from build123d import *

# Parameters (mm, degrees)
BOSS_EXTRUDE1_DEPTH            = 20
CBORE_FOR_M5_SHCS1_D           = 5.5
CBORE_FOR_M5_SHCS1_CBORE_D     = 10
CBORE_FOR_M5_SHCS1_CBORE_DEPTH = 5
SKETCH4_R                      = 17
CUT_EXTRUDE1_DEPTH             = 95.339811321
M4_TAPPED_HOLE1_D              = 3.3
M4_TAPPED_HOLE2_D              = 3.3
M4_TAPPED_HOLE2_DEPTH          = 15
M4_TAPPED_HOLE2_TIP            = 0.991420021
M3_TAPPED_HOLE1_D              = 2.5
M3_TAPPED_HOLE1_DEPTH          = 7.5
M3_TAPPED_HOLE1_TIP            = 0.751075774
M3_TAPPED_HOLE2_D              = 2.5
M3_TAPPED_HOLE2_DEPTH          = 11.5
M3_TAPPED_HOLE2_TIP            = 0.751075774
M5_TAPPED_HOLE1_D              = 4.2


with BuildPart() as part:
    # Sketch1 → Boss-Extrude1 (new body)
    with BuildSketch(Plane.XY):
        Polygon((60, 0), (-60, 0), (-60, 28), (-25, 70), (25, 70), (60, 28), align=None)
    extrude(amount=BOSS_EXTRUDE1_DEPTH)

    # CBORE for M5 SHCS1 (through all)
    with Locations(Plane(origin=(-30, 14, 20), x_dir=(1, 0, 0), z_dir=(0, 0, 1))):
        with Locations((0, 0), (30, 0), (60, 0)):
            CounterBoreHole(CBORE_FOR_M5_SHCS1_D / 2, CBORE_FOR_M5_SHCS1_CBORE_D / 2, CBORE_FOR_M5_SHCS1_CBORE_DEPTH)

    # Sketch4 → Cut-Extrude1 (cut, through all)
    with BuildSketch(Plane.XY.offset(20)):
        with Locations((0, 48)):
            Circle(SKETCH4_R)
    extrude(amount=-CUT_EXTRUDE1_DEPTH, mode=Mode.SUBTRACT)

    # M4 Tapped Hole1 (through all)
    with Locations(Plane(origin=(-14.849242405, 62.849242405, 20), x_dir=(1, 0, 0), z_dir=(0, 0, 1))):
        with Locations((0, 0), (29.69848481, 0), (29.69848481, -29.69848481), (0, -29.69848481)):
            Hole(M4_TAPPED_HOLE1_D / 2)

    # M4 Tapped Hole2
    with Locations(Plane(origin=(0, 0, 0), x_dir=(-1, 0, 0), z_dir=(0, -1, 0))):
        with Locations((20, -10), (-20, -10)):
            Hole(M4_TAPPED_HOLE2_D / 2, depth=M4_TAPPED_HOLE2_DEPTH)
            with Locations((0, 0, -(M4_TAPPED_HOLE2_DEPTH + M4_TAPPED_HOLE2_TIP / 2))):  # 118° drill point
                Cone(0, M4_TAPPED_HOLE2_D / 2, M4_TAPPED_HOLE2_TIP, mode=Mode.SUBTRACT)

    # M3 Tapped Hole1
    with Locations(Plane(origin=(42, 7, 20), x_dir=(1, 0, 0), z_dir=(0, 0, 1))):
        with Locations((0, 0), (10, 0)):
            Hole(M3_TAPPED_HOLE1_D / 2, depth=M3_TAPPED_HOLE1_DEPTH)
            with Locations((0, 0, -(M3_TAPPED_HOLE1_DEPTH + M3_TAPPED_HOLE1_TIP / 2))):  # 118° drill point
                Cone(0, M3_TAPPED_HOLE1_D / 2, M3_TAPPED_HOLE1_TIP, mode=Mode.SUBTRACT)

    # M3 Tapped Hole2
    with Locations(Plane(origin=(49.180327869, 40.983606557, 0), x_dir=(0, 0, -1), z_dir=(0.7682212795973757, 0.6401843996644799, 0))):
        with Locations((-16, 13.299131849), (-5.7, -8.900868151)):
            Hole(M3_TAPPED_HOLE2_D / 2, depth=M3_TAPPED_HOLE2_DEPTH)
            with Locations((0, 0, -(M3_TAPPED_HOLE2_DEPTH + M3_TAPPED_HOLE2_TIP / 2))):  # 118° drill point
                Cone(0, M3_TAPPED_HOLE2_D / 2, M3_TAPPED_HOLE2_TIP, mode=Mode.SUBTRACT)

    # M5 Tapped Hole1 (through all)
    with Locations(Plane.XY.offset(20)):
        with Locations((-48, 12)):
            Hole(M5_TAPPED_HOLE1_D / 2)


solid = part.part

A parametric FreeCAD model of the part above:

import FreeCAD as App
import Part
import Sketcher


def add_polygon(sketch, points):
    """Adds a closed chain of lines whose ends are joined by coincident constraints."""
    first, n = sketch.GeometryCount, len(points)
    for a, b in zip(points, points[1:] + points[:1]):
        sketch.addGeometry(Part.LineSegment(App.Vector(*a, 0), App.Vector(*b, 0)), False)
    for i in range(n):
        sketch.addConstraint(Sketcher.Constraint("Coincident", first + i, 2, first + (i + 1) % n, 1))

doc = App.newDocument("Part")
body = doc.addObject("PartDesign::Body", "Body")

# Sketch on XY plane
sketch1 = doc.addObject("Sketcher::SketchObject", "Sketch")
body.addObject(sketch1)
sketch1.AttachmentSupport = (doc.XY_Plane, [""])
sketch1.MapMode = "FlatFace"
add_polygon(sketch1, [(-60, 0), (60, 0), (60, 28), (25, 70), (-25, 70), (-60, 28)])  # lines 0-5
sketch1.addConstraint(Sketcher.Constraint("Horizontal", 0))
sketch1.addConstraint(Sketcher.Constraint("Vertical", 1))
sketch1.addConstraint(Sketcher.Constraint("Horizontal", 3))
sketch1.addConstraint(Sketcher.Constraint("Vertical", 5))
sketch1.addConstraint(Sketcher.Constraint("Symmetric", 0, 2, 5, 2, -1, 1))
sketch1.addConstraint(Sketcher.Constraint("Horizontal", 1, 2, 4, 2))
sketch1.addConstraint(Sketcher.Constraint("Equal", 2, 4))
sketch1.addConstraint(Sketcher.Constraint("DistanceX", 0, 1, 0, 2, 120.0))
sketch1.addConstraint(Sketcher.Constraint("DistanceX", 3, 2, 3, 1, 50.0))
sketch1.addConstraint(Sketcher.Constraint("DistanceY", 1, 1, 1, 2, 28.0))
sketch1.addConstraint(Sketcher.Constraint("DistanceY", -1, 1, 2, 2, 70.0))
pad1 = doc.addObject("PartDesign::Pad", "Pad")
body.addObject(pad1)
pad1.Profile = sketch1
pad1.Length = 20

# Sketch on XY plane
sketch2 = doc.addObject("Sketcher::SketchObject", "Sketch001")
body.addObject(sketch2)
sketch2.AttachmentSupport = (doc.XY_Plane, [""])
sketch2.MapMode = "FlatFace"
sketch2.AttachmentOffset = App.Placement(App.Vector(0, 0, 20), App.Rotation())
sketch2.addGeometry(Part.Circle(App.Vector(-30, 14, 0), App.Vector(0, 0, 1), 2.8), False)
sketch2.addGeometry(Part.Circle(App.Vector(0, 14, 0), App.Vector(0, 0, 1), 2.8), False)
sketch2.addGeometry(Part.Circle(App.Vector(30, 14, 0), App.Vector(0, 0, 1), 2.8), False)
sketch2.addConstraint(Sketcher.Constraint("Equal", 0, 1))
sketch2.addConstraint(Sketcher.Constraint("Equal", 1, 2))
sketch2.addConstraint(Sketcher.Constraint("Symmetric", 0, 3, 2, 3, -2))
sketch2.addConstraint(Sketcher.Constraint("PointOnObject", 1, 3, -2))
sketch2.addConstraint(Sketcher.Constraint("Horizontal", 0, 3, 1, 3))
sketch2.addConstraint(Sketcher.Constraint("Diameter", 0, 5.5))
sketch2.addConstraint(Sketcher.Constraint("DistanceX", 0, 3, -1, 1, 30.0))
sketch2.addConstraint(Sketcher.Constraint("DistanceY", -1, 1, 0, 3, 14.0))
doc.recompute()
hole = doc.addObject("PartDesign::Hole", "Hole")
body.addObject(hole)
hole.Profile = sketch2
hole.ThreadType = "None"
hole.Diameter = 5.5
hole.DepthType = "ThroughAll"
hole.HoleCutType = "Counterbore"
hole.HoleCutDiameter = 10
hole.HoleCutDepth = 5

# Sketch on XY plane
sketch3 = doc.addObject("Sketcher::SketchObject", "Sketch002")
body.addObject(sketch3)
sketch3.AttachmentSupport = (doc.XY_Plane, [""])
sketch3.MapMode = "FlatFace"
sketch3.AttachmentOffset = App.Placement(App.Vector(0, 0, 20), App.Rotation())
sketch3.addGeometry(Part.Circle(App.Vector(0, 48, 0), App.Vector(0, 0, 1), 17), False)
sketch3.addConstraint(Sketcher.Constraint("PointOnObject", 0, 3, -2))
sketch3.addConstraint(Sketcher.Constraint("Diameter", 0, 34.0))
sketch3.addConstraint(Sketcher.Constraint("DistanceY", -1, 1, 0, 3, 48.0))
pocket1 = doc.addObject("PartDesign::Pocket", "Pocket")
body.addObject(pocket1)
pocket1.Profile = sketch3
pocket1.Type = "ThroughAll"

# Sketch on XY plane
sketch4 = doc.addObject("Sketcher::SketchObject", "Sketch003")
body.addObject(sketch4)
sketch4.AttachmentSupport = (doc.XY_Plane, [""])
sketch4.MapMode = "FlatFace"
sketch4.AttachmentOffset = App.Placement(App.Vector(0, 0, 20), App.Rotation())
sketch4.addGeometry(Part.Circle(App.Vector(-14.8, 62.8, 0), App.Vector(0, 0, 1), 1.6), False)
sketch4.addGeometry(Part.Circle(App.Vector(14.8, 62.8, 0), App.Vector(0, 0, 1), 1.6), False)
sketch4.addGeometry(Part.Circle(App.Vector(14.8, 33.2, 0), App.Vector(0, 0, 1), 1.6), False)
sketch4.addGeometry(Part.Circle(App.Vector(-14.8, 33.2, 0), App.Vector(0, 0, 1), 1.6), False)
sketch4.addConstraint(Sketcher.Constraint("Equal", 0, 1))
sketch4.addConstraint(Sketcher.Constraint("Equal", 1, 2))
sketch4.addConstraint(Sketcher.Constraint("Equal", 2, 3))
sketch4.addConstraint(Sketcher.Constraint("Symmetric", 0, 3, 1, 3, -2))
sketch4.addConstraint(Sketcher.Constraint("Symmetric", 2, 3, 3, 3, -2))
sketch4.addConstraint(Sketcher.Constraint("Vertical", 1, 3, 2, 3))
sketch4.addConstraint(Sketcher.Constraint("Diameter", 0, 3.3))
sketch4.addConstraint(Sketcher.Constraint("DistanceX", 0, 3, -1, 1, 14.849242))
sketch4.addConstraint(Sketcher.Constraint("DistanceY", -1, 1, 0, 3, 62.849242))
sketch4.addConstraint(Sketcher.Constraint("DistanceY", -1, 1, 2, 3, 33.150758))
doc.recompute()
hole2 = doc.addObject("PartDesign::Hole", "Hole001")
body.addObject(hole2)
hole2.Profile = sketch4
hole2.ThreadType = "None"
hole2.Diameter = 3.3
hole2.DepthType = "ThroughAll"

# Sketch on XZ plane
sketch5 = doc.addObject("Sketcher::SketchObject", "Sketch004")
body.addObject(sketch5)
sketch5.AttachmentSupport = (doc.XZ_Plane, [""])
sketch5.MapMode = "FlatFace"
sketch5.addGeometry(Part.Circle(App.Vector(-20, 10, 0), App.Vector(0, 0, 1), 1.6), False)
sketch5.addGeometry(Part.Circle(App.Vector(20, 10, 0), App.Vector(0, 0, 1), 1.6), False)
sketch5.addConstraint(Sketcher.Constraint("Equal", 0, 1))
sketch5.addConstraint(Sketcher.Constraint("Symmetric", 0, 3, 1, 3, -2))
sketch5.addConstraint(Sketcher.Constraint("Diameter", 0, 3.3))
sketch5.addConstraint(Sketcher.Constraint("DistanceX", 0, 3, -1, 1, 20.0))
sketch5.addConstraint(Sketcher.Constraint("DistanceY", -1, 1, 0, 3, 10.0))
doc.recompute()
hole3 = doc.addObject("PartDesign::Hole", "Hole002")
body.addObject(hole3)
hole3.Profile = sketch5
hole3.ThreadType = "None"
hole3.Diameter = 3.3
hole3.DepthType = "Dimension"
hole3.Depth = 15
hole3.DrillPoint = "Angled"
hole3.DrillPointAngle = 118

# Sketch on XY plane
sketch6 = doc.addObject("Sketcher::SketchObject", "Sketch005")
body.addObject(sketch6)
sketch6.AttachmentSupport = (doc.XY_Plane, [""])
sketch6.MapMode = "FlatFace"
sketch6.AttachmentOffset = App.Placement(App.Vector(0, 0, 20), App.Rotation())
sketch6.addGeometry(Part.Circle(App.Vector(42, 7, 0), App.Vector(0, 0, 1), 1.2), False)
sketch6.addGeometry(Part.Circle(App.Vector(52, 7, 0), App.Vector(0, 0, 1), 1.2), False)
sketch6.addConstraint(Sketcher.Constraint("Equal", 0, 1))
sketch6.addConstraint(Sketcher.Constraint("Horizontal", 0, 3, 1, 3))
sketch6.addConstraint(Sketcher.Constraint("Diameter", 0, 2.5))
sketch6.addConstraint(Sketcher.Constraint("DistanceX", -1, 1, 0, 3, 42.0))
sketch6.addConstraint(Sketcher.Constraint("DistanceY", -1, 1, 0, 3, 7.0))
sketch6.addConstraint(Sketcher.Constraint("DistanceX", -1, 1, 1, 3, 52.0))
doc.recompute()
hole4 = doc.addObject("PartDesign::Hole", "Hole003")
body.addObject(hole4)
hole4.Profile = sketch6
hole4.ThreadType = "None"
hole4.Diameter = 2.5
hole4.DepthType = "Dimension"
hole4.Depth = 7.5
hole4.DrillPoint = "Angled"
hole4.DrillPointAngle = 118

# Sketch on an angled plane
sketch7 = doc.addObject("Sketcher::SketchObject", "Sketch006")
body.addObject(sketch7)
sketch7.Placement = App.Placement(App.Vector(49.180328, 40.983607, 0), App.Rotation(App.Vector(0, 0, -1), App.Vector(-0.6401844, 0.76822128, 0), App.Vector(0.76822128, 0.6401844, 0), "ZXY"))
sketch7.addGeometry(Part.Circle(App.Vector(-16, 13.3, 0), App.Vector(0, 0, 1), 1.2), False)
sketch7.addGeometry(Part.Circle(App.Vector(-5.7, -8.9, 0), App.Vector(0, 0, 1), 1.2), False)
sketch7.addConstraint(Sketcher.Constraint("Equal", 0, 1))
sketch7.addConstraint(Sketcher.Constraint("Diameter", 0, 2.5))
sketch7.addConstraint(Sketcher.Constraint("DistanceX", 0, 3, -1, 1, 16.0))
sketch7.addConstraint(Sketcher.Constraint("DistanceX", 1, 3, -1, 1, 5.7))
sketch7.addConstraint(Sketcher.Constraint("DistanceY", 1, 3, 0, 3, 22.2))
sketch7.addConstraint(Sketcher.Constraint("DistanceY", -1, 1, 0, 3, 13.299132))
doc.recompute()
hole5 = doc.addObject("PartDesign::Hole", "Hole004")
body.addObject(hole5)
hole5.Profile = sketch7
hole5.ThreadType = "None"
hole5.Diameter = 2.5
hole5.DepthType = "Dimension"
hole5.Depth = 11.5
hole5.DrillPoint = "Angled"
hole5.DrillPointAngle = 118

# Sketch on XY plane
sketch8 = doc.addObject("Sketcher::SketchObject", "Sketch007")
body.addObject(sketch8)
sketch8.AttachmentSupport = (doc.XY_Plane, [""])
sketch8.MapMode = "FlatFace"
sketch8.AttachmentOffset = App.Placement(App.Vector(0, 0, 20), App.Rotation())
sketch8.addGeometry(Part.Circle(App.Vector(-48, 12, 0), App.Vector(0, 0, 1), 2.1), False)
sketch8.addConstraint(Sketcher.Constraint("Diameter", 0, 4.2))
sketch8.addConstraint(Sketcher.Constraint("DistanceX", 0, 3, -1, 1, 48.0))
sketch8.addConstraint(Sketcher.Constraint("DistanceY", -1, 1, 0, 3, 12.0))
doc.recompute()
hole6 = doc.addObject("PartDesign::Hole", "Hole005")
body.addObject(hole6)
hole6.Profile = sketch8
hole6.ThreadType = "None"
hole6.Diameter = 4.2
hole6.DepthType = "ThroughAll"

doc.recompute()
